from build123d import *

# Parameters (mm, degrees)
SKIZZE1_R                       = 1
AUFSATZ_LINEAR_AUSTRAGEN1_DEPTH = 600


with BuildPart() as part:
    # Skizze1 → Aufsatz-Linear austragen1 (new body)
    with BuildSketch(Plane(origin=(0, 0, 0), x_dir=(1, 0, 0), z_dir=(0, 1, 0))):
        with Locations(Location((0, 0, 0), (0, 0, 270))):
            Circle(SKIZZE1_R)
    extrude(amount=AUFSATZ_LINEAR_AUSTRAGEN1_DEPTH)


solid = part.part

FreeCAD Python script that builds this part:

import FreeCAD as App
import Part
import Sketcher
from FreeCAD import Vector
Q = App.Units.Quantity

doc = App.newDocument("Part")
body = doc.addObject("PartDesign::Body", "Body")

# Sketch on XZ plane
sketch1 = doc.addObject("Sketcher::SketchObject", "Sketch")
body.addObject(sketch1)
sketch1.AttachmentSupport = (doc.XZ_Plane, [""])
sketch1.MapMode = "FlatFace"
sketch1.addGeometry(Part.Circle(Vector(0, 0, 0), Vector(0, 0, 1), 1), False)
sketch1.addConstraint([
    Sketcher.Constraint("Coincident", 0, 3, -1, 1),
    Sketcher.Constraint("Diameter", 0, Q("2 mm")),
])
pad1 = doc.addObject("PartDesign::Pad", "Pad")
body.addObject(pad1)
pad1.Profile = sketch1
pad1.Length = 600
pad1.Reversed = True

doc.recompute()
